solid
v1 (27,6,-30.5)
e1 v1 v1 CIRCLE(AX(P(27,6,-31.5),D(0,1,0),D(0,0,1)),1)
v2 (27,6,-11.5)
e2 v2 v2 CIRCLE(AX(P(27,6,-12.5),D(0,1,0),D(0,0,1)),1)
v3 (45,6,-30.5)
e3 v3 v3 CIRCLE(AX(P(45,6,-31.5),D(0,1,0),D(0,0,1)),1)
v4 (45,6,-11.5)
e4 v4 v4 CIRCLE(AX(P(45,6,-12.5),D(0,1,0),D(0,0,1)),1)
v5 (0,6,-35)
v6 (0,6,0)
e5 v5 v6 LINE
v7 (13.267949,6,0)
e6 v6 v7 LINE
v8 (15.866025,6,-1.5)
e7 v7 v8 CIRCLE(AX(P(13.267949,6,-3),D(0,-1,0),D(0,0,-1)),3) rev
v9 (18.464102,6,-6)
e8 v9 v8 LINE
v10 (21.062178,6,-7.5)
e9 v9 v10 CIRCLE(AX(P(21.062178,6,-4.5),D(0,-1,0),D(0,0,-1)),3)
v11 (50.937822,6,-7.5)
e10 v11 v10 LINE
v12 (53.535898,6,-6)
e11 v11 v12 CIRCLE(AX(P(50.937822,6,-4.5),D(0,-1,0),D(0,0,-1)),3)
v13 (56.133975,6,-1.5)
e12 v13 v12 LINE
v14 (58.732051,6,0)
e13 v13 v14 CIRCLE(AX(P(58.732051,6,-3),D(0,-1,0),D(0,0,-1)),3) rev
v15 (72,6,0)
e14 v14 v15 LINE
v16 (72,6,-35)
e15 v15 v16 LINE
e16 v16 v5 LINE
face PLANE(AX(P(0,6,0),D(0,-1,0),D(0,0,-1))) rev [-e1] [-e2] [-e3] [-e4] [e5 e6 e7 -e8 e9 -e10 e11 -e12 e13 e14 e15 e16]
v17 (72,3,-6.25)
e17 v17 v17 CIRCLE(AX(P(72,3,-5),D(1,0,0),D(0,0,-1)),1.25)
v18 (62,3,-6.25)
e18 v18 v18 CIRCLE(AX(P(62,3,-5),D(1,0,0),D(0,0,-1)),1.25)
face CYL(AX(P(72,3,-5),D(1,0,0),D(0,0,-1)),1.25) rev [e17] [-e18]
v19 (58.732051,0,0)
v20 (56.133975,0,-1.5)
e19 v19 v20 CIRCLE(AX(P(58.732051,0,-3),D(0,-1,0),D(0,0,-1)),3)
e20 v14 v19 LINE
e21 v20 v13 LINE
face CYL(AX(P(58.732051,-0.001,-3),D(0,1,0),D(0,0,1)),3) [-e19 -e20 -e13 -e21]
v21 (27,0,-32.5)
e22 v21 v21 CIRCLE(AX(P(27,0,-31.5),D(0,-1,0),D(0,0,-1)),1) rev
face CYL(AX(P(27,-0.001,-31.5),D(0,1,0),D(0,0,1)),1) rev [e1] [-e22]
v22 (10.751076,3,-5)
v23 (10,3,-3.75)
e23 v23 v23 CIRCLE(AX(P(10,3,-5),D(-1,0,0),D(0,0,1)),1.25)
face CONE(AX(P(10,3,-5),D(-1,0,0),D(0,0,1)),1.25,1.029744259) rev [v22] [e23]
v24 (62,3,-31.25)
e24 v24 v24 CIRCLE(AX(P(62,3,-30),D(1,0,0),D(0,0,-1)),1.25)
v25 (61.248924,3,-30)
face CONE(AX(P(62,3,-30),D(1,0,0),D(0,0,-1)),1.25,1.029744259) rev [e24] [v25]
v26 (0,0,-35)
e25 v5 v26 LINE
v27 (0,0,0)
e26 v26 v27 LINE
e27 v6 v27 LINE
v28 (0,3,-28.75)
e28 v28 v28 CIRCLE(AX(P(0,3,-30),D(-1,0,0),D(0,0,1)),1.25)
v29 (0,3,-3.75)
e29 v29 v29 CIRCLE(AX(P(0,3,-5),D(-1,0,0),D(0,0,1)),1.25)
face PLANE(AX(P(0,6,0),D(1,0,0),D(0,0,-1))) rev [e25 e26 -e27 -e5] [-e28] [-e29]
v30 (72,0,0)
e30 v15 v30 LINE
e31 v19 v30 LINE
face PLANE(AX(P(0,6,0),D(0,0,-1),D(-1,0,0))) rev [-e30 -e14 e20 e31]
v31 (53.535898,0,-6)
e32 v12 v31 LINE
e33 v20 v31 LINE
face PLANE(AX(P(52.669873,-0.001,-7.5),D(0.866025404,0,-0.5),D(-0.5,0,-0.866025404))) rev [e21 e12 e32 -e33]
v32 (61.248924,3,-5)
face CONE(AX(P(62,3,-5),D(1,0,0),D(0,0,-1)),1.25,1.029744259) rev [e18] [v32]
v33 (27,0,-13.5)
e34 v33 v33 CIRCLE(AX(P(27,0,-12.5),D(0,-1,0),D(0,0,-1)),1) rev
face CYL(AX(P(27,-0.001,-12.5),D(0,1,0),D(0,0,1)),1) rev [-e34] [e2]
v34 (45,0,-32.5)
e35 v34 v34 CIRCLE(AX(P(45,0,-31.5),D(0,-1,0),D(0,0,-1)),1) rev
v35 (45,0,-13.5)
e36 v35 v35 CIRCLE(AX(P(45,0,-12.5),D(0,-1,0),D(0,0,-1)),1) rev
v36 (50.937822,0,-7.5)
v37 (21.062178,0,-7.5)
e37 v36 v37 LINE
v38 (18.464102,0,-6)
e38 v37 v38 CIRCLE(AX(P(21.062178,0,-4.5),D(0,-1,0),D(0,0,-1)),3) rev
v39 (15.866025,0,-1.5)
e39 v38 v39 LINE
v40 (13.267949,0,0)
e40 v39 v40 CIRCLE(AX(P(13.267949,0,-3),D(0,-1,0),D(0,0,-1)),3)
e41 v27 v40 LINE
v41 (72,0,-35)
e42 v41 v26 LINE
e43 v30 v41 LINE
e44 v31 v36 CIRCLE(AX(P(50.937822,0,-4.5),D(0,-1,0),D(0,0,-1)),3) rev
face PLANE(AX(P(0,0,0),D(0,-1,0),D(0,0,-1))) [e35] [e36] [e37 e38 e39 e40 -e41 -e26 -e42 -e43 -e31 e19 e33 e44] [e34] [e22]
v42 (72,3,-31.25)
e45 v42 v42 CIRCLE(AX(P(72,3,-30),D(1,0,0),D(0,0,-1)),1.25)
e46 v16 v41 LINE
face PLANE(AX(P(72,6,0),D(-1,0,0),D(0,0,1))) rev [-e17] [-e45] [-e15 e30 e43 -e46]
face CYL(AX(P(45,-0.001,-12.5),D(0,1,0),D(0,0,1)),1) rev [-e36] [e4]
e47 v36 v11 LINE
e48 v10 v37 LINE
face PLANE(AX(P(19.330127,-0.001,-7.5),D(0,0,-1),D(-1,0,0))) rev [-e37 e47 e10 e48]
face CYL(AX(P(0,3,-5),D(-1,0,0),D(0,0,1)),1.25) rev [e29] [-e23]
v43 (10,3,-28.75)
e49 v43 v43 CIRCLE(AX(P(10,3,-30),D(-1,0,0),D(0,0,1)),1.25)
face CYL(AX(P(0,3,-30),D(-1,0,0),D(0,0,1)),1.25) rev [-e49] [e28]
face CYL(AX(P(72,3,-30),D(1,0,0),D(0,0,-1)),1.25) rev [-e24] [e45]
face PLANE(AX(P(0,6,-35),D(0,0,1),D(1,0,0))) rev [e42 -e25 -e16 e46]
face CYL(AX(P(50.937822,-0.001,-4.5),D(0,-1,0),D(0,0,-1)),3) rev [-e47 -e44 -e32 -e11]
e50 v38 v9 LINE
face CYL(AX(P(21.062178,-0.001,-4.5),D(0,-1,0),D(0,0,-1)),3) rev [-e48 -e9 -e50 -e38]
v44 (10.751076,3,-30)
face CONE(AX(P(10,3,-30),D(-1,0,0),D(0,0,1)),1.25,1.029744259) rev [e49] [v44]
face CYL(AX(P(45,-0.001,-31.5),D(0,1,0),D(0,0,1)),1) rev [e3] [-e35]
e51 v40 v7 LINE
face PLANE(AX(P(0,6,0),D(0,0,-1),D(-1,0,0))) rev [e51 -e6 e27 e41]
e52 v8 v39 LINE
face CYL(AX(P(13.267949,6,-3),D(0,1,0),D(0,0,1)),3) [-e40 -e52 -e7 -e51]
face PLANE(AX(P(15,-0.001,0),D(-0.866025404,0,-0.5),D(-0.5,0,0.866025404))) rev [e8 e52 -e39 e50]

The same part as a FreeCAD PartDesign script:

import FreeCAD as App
import Part
import Sketcher
Q = App.Units.Quantity


def edges_at(feature, points):
    """Names of the edges that pass closest to the given points."""
    edges = feature.Shape.Edges
    near = lambda p: min(range(len(edges)), key=lambda i: edges[i].distToShape(Part.Vertex(*p))[0])
    return sorted({f"Edge{near(p) + 1}" for p in points})


def add_polygon(sketch, points):
    """Adds a closed chain of lines whose ends are joined by coincident constraints."""
    first, n = sketch.GeometryCount, len(points)
    for a, b in zip(points, points[1:] + points[:1]):
        sketch.addGeometry(Part.LineSegment(App.Vector(*a, 0), App.Vector(*b, 0)), False)
    for i in range(n):
        sketch.addConstraint(Sketcher.Constraint("Coincident", first + i, 2, first + (i + 1) % n, 1))

doc = App.newDocument("Part")
body = doc.addObject("PartDesign::Body", "Body")

sketch1 = body.newObject("Sketcher::SketchObject", "Sketch")
sketch1.AttachmentSupport = (doc.getObject("XZ_Plane"), [""])
sketch1.MapMode = "FlatFace"
add_polygon(sketch1, [(0, -35), (0, 0), (72, 0), (72, -35)])
sketch1.addConstraint([
    Sketcher.Constraint("Vertical", 0),
    Sketcher.Constraint("Horizontal", 1),
    Sketcher.Constraint("Vertical", 2),
    Sketcher.Constraint("Horizontal", 3),
    Sketcher.Constraint("Coincident", 0, 2, -1, 1),
    Sketcher.Constraint("DistanceX", 1, 1, 1, 2, 72.0),
    Sketcher.Constraint("DistanceY", 0, 1, 0, 2, 35.0),
])
pad1 = body.newObject("PartDesign::Pad", "Pad")
pad1.Profile = sketch1
pad1.Length = 6
pad1.Reversed = True

sketch2 = body.newObject("Sketcher::SketchObject", "Sketch001")
sketch2.AttachmentSupport = (doc.getObject("XZ_Plane"), [""])
sketch2.MapMode = "FlatFace"
sketch2.AttachmentOffset = App.Placement(App.Vector(0, 0, -6), App.Rotation())
add_polygon(sketch2, [(15, 0), (57, 0), (53, -8), (19, -8)])
sketch2.addConstraint([
    Sketcher.Constraint("Horizontal", 0),
    Sketcher.Constraint("Horizontal", 2),
    Sketcher.Constraint("PointOnObject", 0, 2, -1),
    Sketcher.Constraint("Equal", 1, 3),
    Sketcher.Constraint("DistanceX", 0, 1, 0, 2, 42.0),
    Sketcher.Constraint("Angle", 1, Q("-120 deg")),
    Sketcher.Constraint("DistanceX", -1, 1, 0, 2, 57.0),
    Sketcher.Constraint("DistanceY", 1, 2, -1, 1, 7.5),
])
pocket1 = body.newObject("PartDesign::Pocket", "Pocket")
pocket1.Profile = sketch2
pocket1.Type = "UpToFirst"
pocket1.Reversed = True

sketch3 = body.newObject("Sketcher::SketchObject", "Sketch002")
sketch3.AttachmentSupport = (doc.getObject("XZ_Plane"), [""])
sketch3.MapMode = "FlatFace"
sketch3.AttachmentOffset = App.Placement(App.Vector(0, 0, -6), App.Rotation())
sketch3.addGeometry(Part.Circle(App.Vector(27, -12.5, 0), App.Vector(0, 0, 1), 1), False)
sketch3.addConstraint([
    Sketcher.Constraint("Diameter", 0, 2.0),
    Sketcher.Constraint("DistanceX", -1, 1, 0, 3, 27.0),
    Sketcher.Constraint("DistanceY", 0, 3, -1, 1, 12.5),
])
pocket2 = body.newObject("PartDesign::Pocket", "Pocket001")
pocket2.Profile = sketch3
pocket2.Type = "UpToFirst"
pocket2.Reversed = True

sketch4 = body.newObject("Sketcher::SketchObject", "Sketch003")
sketch4.AttachmentSupport = (doc.getObject("XZ_Plane"), [""])
sketch4.MapMode = "FlatFace"
sketch4.AttachmentOffset = App.Placement(App.Vector(0, 0, -6), App.Rotation())
sketch4.addGeometry(Part.Circle(App.Vector(45, -12.5, 0), App.Vector(0, 0, 1), 1), False)
sketch4.addConstraint([
    Sketcher.Constraint("Diameter", 0, 2.0),
    Sketcher.Constraint("DistanceX", -1, 1, 0, 3, 45.0),
    Sketcher.Constraint("DistanceY", 0, 3, -1, 1, 12.5),
])
pocket3 = body.newObject("PartDesign::Pocket", "Pocket002")
pocket3.Profile = sketch4
pocket3.Type = "UpToFirst"
pocket3.Reversed = True

sketch5 = body.newObject("Sketcher::SketchObject", "Sketch004")
sketch5.AttachmentSupport = (doc.getObject("XZ_Plane"), [""])
sketch5.MapMode = "FlatFace"
sketch5.AttachmentOffset = App.Placement(App.Vector(0, 0, -6), App.Rotation())
sketch5.addGeometry(Part.Circle(App.Vector(45, -31.5, 0), App.Vector(0, 0, 1), 1), False)
sketch5.addConstraint([
    Sketcher.Constraint("Diameter", 0, 2.0),
    Sketcher.Constraint("DistanceX", -1, 1, 0, 3, 45.0),
    Sketcher.Constraint("DistanceY", 0, 3, -1, 1, 31.5),
])
pocket4 = body.newObject("PartDesign::Pocket", "Pocket003")
pocket4.Profile = sketch5
pocket4.Type = "UpToFirst"
pocket4.Reversed = True

sketch6 = body.newObject("Sketcher::SketchObject", "Sketch005")
sketch6.AttachmentSupport = (doc.getObject("XZ_Plane"), [""])
sketch6.MapMode = "FlatFace"
sketch6.AttachmentOffset = App.Placement(App.Vector(0, 0, -6), App.Rotation())
sketch6.addGeometry(Part.Circle(App.Vector(27, -31.5, 0), App.Vector(0, 0, 1), 1), False)
sketch6.addConstraint([
    Sketcher.Constraint("Diameter", 0, 2.0),
    Sketcher.Constraint("DistanceX", -1, 1, 0, 3, 27.0),
    Sketcher.Constraint("DistanceY", 0, 3, -1, 1, 31.5),
])
pocket5 = body.newObject("PartDesign::Pocket", "Pocket004")
pocket5.Profile = sketch6
pocket5.Type = "UpToFirst"
pocket5.Reversed = True
doc.recompute()

fillet = body.newObject("PartDesign::Fillet", "Fillet")
fillet.Base = (pocket5, edges_at(pocket5, [
    (15, 3, 0),
    (19.33, 3, -7.5),
    (52.67, 3, -7.5),
    (57, 3, 0),
]))
fillet.Radius = 3

sketch7 = body.newObject("Sketcher::SketchObject", "Sketch006")
sketch7.AttachmentSupport = (doc.getObject("YZ_Plane"), [""])
sketch7.MapMode = "FlatFace"
sketch7.addGeometry([
    Part.Circle(App.Vector(3, -30, 0), App.Vector(0, 0, 1), 1.2),
    Part.Circle(App.Vector(3, -5, 0), App.Vector(0, 0, 1), 1.2),
], False)
sketch7.addConstraint([
    Sketcher.Constraint("Equal", 0, 1),
    Sketcher.Constraint("Vertical", 0, 3, 1, 3),
    Sketcher.Constraint("Diameter", 0, 2.5),
    Sketcher.Constraint("DistanceX", -1, 1, 0, 3, 3.0),
    Sketcher.Constraint("DistanceY", 0, 3, -1, 1, 30.0),
    Sketcher.Constraint("DistanceY", 1, 3, -1, 1, 5.0),
])
doc.recompute()
hole = body.newObject("PartDesign::Hole", "Hole")
hole.Profile = sketch7
hole.ThreadType = "None"
hole.Diameter = 2.5
hole.DepthType = "Dimension"
hole.Depth = 10
hole.DrillPoint = "Angled"
hole.DrillPointAngle = 118
hole.Reversed = True

sketch8 = body.newObject("Sketcher::SketchObject", "Sketch007")
sketch8.AttachmentSupport = (doc.getObject("YZ_Plane"), [""])
sketch8.MapMode = "FlatFace"
sketch8.AttachmentOffset = App.Placement(App.Vector(0, 0, 72), App.Rotation())
sketch8.addGeometry([
    Part.Circle(App.Vector(3, -5, 0), App.Vector(0, 0, 1), 1.2),
    Part.Circle(App.Vector(3, -30, 0), App.Vector(0, 0, 1), 1.2),
], False)
sketch8.addConstraint([
    Sketcher.Constraint("Equal", 0, 1),
    Sketcher.Constraint("Vertical", 0, 3, 1, 3),
    Sketcher.Constraint("Diameter", 0, 2.5),
    Sketcher.Constraint("DistanceX", -1, 1, 0, 3, 3.0),
    Sketcher.Constraint("DistanceY", 0, 3, -1, 1, 5.0),
    Sketcher.Constraint("DistanceY", 1, 3, -1, 1, 30.0),
])
doc.recompute()
hole2 = body.newObject("PartDesign::Hole", "Hole001")
hole2.Profile = sketch8
hole2.ThreadType = "None"
hole2.Diameter = 2.5
hole2.DepthType = "Dimension"
hole2.Depth = 10
hole2.DrillPoint = "Angled"
hole2.DrillPointAngle = 118

doc.recompute()
